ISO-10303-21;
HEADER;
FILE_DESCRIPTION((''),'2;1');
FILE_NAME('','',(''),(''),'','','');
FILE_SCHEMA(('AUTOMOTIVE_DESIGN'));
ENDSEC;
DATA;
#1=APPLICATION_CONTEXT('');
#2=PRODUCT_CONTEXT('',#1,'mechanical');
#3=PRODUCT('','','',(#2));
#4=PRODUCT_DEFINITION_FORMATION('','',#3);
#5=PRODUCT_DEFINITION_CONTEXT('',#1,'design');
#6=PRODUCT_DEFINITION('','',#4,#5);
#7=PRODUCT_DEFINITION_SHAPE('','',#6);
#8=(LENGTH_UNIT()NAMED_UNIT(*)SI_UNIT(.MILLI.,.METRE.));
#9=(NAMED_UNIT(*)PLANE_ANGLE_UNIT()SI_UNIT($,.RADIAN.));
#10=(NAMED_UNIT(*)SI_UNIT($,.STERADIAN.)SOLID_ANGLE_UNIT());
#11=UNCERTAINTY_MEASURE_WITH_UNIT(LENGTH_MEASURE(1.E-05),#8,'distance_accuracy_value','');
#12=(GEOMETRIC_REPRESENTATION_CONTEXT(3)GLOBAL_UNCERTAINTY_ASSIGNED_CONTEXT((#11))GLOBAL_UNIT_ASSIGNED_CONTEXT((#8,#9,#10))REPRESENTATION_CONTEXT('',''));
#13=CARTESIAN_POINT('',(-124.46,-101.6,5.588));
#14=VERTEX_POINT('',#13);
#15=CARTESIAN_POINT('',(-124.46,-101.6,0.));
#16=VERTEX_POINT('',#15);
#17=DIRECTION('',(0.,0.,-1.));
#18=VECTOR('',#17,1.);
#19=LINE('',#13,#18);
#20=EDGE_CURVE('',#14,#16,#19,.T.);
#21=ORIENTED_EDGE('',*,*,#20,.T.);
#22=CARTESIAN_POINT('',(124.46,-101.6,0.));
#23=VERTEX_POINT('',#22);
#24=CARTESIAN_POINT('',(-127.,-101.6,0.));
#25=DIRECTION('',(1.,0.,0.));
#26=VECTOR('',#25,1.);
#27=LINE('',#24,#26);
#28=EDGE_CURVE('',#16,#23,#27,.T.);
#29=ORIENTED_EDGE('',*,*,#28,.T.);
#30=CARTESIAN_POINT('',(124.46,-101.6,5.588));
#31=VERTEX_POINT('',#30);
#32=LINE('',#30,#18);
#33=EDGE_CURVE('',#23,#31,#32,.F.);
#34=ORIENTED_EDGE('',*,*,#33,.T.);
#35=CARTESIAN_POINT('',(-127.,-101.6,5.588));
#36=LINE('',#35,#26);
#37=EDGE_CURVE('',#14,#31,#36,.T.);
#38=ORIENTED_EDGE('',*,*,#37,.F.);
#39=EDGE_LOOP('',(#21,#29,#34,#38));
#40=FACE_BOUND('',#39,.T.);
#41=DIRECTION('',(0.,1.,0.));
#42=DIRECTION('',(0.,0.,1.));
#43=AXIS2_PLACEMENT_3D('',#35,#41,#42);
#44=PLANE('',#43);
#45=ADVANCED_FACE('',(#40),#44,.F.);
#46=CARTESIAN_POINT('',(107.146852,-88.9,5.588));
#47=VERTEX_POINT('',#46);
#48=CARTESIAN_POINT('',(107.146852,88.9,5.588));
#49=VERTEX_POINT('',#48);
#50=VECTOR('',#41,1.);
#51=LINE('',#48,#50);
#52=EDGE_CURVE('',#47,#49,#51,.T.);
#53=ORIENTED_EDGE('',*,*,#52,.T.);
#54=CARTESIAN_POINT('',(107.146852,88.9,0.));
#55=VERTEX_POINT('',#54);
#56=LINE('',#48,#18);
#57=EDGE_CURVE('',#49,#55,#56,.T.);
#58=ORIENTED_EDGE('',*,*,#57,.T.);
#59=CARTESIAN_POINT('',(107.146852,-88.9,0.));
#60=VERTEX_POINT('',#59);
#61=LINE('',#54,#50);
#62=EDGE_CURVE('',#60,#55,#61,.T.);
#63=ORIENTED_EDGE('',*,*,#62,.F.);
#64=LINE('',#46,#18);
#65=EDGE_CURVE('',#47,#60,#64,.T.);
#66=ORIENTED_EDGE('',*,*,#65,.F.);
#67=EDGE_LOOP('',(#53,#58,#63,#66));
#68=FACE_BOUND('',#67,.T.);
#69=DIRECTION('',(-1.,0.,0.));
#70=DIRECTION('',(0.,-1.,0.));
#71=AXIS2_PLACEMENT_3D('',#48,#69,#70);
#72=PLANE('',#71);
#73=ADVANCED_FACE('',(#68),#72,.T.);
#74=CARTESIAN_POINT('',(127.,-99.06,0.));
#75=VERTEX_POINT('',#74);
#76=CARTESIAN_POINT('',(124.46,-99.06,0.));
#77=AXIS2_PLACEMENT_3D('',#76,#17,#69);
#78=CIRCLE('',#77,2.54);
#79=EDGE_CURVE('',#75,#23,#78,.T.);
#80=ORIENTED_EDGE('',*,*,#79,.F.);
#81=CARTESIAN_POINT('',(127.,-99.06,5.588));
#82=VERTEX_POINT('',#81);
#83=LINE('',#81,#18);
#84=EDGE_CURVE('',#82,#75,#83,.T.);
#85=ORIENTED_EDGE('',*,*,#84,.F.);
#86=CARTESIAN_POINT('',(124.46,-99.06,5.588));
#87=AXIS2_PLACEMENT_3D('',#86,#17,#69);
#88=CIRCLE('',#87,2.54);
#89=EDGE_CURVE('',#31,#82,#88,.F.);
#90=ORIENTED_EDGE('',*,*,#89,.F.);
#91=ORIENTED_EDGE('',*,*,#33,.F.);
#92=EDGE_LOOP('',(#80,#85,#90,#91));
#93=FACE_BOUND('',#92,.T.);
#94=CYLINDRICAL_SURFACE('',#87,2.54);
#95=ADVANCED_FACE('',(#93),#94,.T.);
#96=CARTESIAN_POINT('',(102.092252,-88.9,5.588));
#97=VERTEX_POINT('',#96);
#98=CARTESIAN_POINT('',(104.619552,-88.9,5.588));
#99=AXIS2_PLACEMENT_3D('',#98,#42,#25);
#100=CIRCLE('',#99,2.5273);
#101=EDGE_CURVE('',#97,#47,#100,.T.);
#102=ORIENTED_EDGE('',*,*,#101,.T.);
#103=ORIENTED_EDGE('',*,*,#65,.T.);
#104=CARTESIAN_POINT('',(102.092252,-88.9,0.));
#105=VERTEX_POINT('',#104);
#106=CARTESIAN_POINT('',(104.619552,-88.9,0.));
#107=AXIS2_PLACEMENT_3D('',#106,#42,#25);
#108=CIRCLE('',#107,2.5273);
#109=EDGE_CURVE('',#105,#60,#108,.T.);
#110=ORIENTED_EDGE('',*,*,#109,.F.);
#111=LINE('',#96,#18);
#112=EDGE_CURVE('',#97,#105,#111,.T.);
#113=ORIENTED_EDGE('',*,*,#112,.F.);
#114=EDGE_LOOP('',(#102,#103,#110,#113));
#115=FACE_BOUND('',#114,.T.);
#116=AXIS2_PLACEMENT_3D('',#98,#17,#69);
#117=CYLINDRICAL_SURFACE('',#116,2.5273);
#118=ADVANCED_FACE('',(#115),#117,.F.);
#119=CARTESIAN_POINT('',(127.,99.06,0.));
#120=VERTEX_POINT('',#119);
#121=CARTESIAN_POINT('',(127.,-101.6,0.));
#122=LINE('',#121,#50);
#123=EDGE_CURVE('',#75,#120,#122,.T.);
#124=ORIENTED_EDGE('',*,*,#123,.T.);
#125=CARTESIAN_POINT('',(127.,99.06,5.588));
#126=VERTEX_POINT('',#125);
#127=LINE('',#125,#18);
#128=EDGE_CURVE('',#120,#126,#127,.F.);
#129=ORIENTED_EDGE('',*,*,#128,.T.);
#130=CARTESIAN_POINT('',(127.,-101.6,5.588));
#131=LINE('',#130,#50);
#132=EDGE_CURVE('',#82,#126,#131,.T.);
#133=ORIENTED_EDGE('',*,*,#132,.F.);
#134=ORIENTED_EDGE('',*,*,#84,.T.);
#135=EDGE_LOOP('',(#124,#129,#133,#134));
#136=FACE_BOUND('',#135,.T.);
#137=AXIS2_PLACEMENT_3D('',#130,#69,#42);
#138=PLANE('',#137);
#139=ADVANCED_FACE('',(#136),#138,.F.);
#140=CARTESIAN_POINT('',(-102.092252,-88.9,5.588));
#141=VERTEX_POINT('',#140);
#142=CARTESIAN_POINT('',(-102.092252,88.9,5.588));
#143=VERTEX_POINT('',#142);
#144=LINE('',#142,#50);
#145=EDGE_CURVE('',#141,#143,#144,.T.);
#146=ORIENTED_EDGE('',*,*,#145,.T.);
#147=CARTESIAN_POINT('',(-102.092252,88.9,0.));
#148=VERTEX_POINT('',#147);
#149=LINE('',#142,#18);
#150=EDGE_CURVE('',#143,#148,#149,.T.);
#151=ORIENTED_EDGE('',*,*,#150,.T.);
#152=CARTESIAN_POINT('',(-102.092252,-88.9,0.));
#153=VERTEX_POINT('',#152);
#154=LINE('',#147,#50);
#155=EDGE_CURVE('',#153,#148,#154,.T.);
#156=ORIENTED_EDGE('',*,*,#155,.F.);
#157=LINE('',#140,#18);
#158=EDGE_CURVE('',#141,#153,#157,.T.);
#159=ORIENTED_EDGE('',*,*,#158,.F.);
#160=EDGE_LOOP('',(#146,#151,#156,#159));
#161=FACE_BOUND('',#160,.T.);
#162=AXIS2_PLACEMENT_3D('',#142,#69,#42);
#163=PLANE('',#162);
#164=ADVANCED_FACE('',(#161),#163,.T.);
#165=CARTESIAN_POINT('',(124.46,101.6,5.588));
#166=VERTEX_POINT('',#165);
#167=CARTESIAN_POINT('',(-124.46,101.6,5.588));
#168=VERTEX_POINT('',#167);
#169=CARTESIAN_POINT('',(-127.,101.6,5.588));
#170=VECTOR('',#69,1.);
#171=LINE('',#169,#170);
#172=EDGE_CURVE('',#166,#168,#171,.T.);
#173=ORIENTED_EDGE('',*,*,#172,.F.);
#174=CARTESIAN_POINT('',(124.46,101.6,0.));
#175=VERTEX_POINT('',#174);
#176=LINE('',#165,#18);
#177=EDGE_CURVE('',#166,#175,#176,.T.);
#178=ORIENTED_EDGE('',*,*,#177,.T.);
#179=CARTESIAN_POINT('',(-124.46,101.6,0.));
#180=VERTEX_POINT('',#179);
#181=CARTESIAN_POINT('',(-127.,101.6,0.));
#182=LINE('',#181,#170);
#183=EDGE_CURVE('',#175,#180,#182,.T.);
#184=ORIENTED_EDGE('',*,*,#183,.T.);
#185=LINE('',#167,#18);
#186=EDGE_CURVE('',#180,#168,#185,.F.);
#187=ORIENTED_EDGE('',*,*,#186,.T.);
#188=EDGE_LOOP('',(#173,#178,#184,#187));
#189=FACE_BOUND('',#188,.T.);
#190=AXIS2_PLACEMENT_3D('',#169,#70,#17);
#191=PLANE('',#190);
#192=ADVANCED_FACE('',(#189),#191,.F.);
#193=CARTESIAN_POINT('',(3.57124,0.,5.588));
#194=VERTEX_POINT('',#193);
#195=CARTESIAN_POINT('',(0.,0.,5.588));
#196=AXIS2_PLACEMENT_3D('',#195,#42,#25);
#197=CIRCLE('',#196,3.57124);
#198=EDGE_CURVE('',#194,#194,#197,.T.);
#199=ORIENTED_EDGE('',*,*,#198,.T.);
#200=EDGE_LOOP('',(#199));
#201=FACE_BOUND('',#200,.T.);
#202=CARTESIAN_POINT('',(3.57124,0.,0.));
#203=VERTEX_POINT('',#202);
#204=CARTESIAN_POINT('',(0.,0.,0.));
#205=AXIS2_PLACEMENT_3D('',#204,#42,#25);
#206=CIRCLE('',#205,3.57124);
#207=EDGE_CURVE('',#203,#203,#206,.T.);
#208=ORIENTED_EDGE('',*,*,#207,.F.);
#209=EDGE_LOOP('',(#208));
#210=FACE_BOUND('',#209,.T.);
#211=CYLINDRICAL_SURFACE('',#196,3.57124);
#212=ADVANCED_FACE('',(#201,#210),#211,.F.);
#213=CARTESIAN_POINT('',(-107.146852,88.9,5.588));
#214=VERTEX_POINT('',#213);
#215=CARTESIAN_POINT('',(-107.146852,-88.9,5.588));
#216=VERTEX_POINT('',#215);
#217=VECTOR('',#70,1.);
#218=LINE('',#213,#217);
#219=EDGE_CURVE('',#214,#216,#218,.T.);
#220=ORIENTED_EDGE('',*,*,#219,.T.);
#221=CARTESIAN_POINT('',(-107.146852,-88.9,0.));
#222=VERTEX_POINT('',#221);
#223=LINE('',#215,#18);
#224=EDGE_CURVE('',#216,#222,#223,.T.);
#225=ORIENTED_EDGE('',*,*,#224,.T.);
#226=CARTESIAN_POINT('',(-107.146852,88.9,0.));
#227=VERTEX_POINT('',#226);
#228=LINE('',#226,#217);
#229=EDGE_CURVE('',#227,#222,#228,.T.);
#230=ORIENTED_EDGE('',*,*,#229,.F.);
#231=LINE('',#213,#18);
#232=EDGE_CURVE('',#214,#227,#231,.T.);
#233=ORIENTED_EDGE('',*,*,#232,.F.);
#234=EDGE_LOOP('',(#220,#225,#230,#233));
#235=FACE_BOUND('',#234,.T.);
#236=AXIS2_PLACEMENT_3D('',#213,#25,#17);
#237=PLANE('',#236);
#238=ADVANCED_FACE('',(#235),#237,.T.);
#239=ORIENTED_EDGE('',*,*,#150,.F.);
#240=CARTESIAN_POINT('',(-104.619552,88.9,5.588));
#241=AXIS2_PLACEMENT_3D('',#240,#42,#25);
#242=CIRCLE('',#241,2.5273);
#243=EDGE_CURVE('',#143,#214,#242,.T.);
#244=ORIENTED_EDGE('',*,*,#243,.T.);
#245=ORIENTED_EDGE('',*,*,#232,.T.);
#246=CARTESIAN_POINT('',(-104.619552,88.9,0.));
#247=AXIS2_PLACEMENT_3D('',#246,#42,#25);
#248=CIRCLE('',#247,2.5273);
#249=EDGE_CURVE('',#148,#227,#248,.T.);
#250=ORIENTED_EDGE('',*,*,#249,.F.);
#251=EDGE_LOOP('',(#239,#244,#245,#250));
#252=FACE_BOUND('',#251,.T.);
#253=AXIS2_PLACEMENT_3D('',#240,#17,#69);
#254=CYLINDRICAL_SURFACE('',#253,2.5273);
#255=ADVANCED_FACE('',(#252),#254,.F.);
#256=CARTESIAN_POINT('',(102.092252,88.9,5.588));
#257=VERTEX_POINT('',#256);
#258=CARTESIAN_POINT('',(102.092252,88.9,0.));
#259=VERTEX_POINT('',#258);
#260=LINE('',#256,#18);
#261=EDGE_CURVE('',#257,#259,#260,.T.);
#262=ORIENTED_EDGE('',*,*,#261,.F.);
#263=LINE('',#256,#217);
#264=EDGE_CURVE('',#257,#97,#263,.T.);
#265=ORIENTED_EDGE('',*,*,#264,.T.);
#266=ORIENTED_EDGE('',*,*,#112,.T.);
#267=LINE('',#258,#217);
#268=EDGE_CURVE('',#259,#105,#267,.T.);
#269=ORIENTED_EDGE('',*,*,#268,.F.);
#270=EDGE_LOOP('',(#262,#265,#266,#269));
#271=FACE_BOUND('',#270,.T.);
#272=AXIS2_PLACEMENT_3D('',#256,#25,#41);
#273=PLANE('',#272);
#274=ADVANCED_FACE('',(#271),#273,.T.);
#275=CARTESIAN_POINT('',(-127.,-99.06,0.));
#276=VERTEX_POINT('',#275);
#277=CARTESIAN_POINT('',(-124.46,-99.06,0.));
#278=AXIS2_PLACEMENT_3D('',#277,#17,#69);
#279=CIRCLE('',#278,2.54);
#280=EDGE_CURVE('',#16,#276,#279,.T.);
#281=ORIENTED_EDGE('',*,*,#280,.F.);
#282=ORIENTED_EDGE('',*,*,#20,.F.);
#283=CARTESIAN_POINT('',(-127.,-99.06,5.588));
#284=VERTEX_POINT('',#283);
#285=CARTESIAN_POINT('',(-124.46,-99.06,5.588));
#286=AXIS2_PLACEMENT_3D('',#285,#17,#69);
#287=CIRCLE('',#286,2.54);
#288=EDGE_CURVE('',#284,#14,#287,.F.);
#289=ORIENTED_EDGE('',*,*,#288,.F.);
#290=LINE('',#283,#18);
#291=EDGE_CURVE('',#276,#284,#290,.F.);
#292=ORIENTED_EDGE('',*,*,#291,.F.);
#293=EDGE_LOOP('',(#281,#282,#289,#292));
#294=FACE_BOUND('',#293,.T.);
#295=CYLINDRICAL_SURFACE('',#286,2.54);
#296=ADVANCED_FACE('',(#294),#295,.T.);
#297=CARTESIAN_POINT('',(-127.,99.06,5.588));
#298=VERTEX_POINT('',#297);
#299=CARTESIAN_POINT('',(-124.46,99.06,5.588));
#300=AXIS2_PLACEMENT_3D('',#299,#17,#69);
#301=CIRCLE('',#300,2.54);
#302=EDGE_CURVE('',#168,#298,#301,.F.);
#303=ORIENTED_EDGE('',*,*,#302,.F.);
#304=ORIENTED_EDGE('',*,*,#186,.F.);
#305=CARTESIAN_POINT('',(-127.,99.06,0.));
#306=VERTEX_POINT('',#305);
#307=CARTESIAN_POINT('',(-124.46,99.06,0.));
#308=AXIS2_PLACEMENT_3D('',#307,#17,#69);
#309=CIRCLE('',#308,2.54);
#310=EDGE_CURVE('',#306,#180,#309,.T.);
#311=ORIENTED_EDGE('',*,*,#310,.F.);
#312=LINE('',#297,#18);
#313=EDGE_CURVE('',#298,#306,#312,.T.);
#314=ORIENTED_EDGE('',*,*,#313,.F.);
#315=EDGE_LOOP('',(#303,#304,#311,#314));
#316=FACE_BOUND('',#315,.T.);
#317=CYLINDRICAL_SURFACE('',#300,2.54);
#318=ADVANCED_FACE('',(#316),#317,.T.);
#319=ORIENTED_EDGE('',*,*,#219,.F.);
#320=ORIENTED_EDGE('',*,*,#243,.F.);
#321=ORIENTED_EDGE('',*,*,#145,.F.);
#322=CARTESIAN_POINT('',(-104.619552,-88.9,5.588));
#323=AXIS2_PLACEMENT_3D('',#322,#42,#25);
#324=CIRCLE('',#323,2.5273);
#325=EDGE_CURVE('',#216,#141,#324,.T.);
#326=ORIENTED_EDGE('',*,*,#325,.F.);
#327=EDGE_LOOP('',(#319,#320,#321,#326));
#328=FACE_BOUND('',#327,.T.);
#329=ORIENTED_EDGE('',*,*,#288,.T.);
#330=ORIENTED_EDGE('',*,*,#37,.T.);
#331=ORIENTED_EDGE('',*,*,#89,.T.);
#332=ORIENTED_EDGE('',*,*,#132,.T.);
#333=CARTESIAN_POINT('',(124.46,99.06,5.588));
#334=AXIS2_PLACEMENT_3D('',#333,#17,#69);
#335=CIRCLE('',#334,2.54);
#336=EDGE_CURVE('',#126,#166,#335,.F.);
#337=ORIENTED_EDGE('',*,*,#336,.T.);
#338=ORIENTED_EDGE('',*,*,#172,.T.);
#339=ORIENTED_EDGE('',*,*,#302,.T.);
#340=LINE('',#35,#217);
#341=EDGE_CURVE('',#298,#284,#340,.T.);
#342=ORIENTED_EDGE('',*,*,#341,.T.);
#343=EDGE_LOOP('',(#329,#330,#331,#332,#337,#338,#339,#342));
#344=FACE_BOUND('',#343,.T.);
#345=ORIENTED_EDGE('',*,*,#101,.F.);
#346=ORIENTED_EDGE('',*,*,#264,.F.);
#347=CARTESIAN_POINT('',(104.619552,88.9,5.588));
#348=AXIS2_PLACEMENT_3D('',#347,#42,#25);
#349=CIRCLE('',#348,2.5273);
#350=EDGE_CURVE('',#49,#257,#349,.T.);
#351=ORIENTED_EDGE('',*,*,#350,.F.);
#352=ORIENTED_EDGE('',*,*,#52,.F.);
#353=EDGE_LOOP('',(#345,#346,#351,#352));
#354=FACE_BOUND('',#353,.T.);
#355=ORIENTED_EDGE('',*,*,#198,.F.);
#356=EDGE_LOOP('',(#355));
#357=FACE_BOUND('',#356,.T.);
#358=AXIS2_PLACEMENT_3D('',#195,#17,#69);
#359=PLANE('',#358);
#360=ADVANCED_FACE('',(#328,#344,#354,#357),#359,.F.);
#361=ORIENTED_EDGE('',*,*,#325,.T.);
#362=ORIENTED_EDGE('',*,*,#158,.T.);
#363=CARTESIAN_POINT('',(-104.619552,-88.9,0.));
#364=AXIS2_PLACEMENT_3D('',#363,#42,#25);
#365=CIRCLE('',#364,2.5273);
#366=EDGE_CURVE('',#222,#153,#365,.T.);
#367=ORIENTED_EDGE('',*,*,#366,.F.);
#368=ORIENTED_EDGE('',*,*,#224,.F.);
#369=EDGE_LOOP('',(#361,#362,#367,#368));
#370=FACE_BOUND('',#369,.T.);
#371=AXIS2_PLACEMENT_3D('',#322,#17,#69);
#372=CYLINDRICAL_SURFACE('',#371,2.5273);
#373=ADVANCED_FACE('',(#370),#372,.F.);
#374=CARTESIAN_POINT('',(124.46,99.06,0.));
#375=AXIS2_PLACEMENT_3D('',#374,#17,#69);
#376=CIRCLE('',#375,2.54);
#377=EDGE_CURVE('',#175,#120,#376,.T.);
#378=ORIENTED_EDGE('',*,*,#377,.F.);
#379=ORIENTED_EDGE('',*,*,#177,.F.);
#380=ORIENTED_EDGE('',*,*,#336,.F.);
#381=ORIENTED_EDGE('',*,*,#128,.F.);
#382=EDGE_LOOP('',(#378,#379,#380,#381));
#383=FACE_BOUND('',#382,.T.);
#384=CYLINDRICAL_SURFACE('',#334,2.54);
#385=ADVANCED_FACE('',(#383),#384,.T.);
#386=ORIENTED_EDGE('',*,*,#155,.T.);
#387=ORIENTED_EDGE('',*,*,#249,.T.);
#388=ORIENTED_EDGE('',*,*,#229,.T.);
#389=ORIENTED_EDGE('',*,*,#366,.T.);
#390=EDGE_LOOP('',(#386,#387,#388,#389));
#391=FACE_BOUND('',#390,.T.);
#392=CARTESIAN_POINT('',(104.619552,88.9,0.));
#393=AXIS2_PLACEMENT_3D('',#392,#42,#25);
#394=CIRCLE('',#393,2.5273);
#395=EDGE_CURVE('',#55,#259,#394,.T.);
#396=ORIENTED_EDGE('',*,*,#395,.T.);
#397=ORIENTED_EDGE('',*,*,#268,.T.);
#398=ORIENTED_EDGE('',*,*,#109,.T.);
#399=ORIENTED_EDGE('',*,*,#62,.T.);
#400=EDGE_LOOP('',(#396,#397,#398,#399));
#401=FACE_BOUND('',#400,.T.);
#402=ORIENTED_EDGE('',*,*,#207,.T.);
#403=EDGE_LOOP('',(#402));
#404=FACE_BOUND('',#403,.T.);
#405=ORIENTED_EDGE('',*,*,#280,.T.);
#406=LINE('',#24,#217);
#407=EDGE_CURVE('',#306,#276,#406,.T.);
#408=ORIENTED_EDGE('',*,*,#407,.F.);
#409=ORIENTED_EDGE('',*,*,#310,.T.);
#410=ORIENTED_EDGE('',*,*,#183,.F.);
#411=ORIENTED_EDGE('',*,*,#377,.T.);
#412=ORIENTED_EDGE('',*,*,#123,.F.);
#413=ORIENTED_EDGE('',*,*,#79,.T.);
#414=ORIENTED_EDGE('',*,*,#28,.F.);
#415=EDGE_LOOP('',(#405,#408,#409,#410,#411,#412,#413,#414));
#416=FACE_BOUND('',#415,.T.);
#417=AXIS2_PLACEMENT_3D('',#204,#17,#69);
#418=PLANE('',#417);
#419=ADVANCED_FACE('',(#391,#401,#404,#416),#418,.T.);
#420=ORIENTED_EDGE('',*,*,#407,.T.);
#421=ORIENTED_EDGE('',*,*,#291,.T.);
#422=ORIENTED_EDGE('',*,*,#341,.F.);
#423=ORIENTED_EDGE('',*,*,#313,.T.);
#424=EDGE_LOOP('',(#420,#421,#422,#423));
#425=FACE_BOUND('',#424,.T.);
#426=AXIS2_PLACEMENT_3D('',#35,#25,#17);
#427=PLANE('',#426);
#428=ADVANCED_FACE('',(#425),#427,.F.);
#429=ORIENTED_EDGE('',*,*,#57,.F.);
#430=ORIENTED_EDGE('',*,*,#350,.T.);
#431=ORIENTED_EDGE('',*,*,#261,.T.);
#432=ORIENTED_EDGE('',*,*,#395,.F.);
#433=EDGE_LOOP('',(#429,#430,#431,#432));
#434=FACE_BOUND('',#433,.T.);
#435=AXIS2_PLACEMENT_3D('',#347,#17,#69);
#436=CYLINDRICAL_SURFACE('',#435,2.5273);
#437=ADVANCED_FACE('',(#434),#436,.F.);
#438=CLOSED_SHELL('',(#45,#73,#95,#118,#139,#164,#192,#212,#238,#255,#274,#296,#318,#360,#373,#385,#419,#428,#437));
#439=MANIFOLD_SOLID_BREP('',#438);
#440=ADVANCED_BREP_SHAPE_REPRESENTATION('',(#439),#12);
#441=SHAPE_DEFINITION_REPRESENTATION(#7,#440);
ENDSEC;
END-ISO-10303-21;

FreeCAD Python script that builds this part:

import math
import FreeCAD as App
import Part
import Sketcher
from FreeCAD import Vector
Q = App.Units.Quantity


def edges_at(feature, points):
    """Names of the edges that pass closest to the given points."""
    edges = feature.Shape.Edges
    near = lambda p: min(range(len(edges)), key=lambda i: edges[i].distToShape(Part.Vertex(*p))[0])
    return sorted({f"Edge{near(p) + 1}" for p in points})


def add_polygon(sketch, points):
    """Adds a closed chain of lines whose ends are joined by coincident constraints."""
    first, n = sketch.GeometryCount, len(points)
    for a, b in zip(points, points[1:] + points[:1]):
        sketch.addGeometry(Part.LineSegment(App.Vector(*a, 0), App.Vector(*b, 0)), False)
    for i in range(n):
        sketch.addConstraint(Sketcher.Constraint("Coincident", first + i, 2, first + (i + 1) % n, 1))

doc = App.newDocument("Part")
body = doc.addObject("PartDesign::Body", "Body")

sketch1 = body.newObject("Sketcher::SketchObject", "Sketch")
sketch1.AttachmentSupport = (doc.getObject("XY_Plane"), [""])
sketch1.MapMode = "FlatFace"
add_polygon(sketch1, [(-127, 101.6), (-127, -101.6), (127, -101.6), (127, 101.6)])
sketch1.addGeometry(Part.ArcOfCircle(Part.Circle(Vector(-104.6, 88.9, 0), Vector(0, 0, 1), 2.5), math.radians(0), math.radians(180)), False)
sketch1.addGeometry(Part.LineSegment(Vector(-102.1, 88.9, 0), Vector(-102.1, -88.9, 0)), False)
sketch1.addGeometry(Part.ArcOfCircle(Part.Circle(Vector(-104.6, -88.9, 0), Vector(0, 0, 1), 2.5), math.radians(180), math.radians(360)), False)
sketch1.addGeometry(Part.LineSegment(Vector(-107.1, -88.9, 0), Vector(-107.1, 88.9, 0)), False)
sketch1.addGeometry(Part.ArcOfCircle(Part.Circle(Vector(104.6, 88.9, 0), Vector(0, 0, 1), 2.5), math.radians(0), math.radians(180)), False)
sketch1.addGeometry(Part.LineSegment(Vector(107.1, 88.9, 0), Vector(107.1, -88.9, 0)), False)
sketch1.addGeometry(Part.ArcOfCircle(Part.Circle(Vector(104.6, -88.9, 0), Vector(0, 0, 1), 2.5), math.radians(180), math.radians(360)), False)
sketch1.addGeometry(Part.LineSegment(Vector(102.1, -88.9, 0), Vector(102.1, 88.9, 0)), False)
sketch1.addConstraint(Sketcher.Constraint("Tangent", 4, 1, 5, 1))
sketch1.addConstraint(Sketcher.Constraint("Tangent", 5, 2, 6, 2))
sketch1.addConstraint(Sketcher.Constraint("Tangent", 6, 1, 7, 1))
sketch1.addConstraint(Sketcher.Constraint("Tangent", 7, 2, 4, 2))
sketch1.addConstraint(Sketcher.Constraint("Tangent", 8, 1, 9, 1))
sketch1.addConstraint(Sketcher.Constraint("Tangent", 9, 2, 10, 2))
sketch1.addConstraint(Sketcher.Constraint("Tangent", 10, 1, 11, 1))
sketch1.addConstraint(Sketcher.Constraint("Tangent", 11, 2, 8, 2))
sketch1.addConstraint(Sketcher.Constraint("Vertical", 0))
sketch1.addConstraint(Sketcher.Constraint("Horizontal", 1))
sketch1.addConstraint(Sketcher.Constraint("Vertical", 2))
sketch1.addConstraint(Sketcher.Constraint("Horizontal", 3))
sketch1.addConstraint(Sketcher.Constraint("Vertical", 5))
sketch1.addConstraint(Sketcher.Constraint("Vertical", 7))
sketch1.addConstraint(Sketcher.Constraint("Vertical", 9))
sketch1.addConstraint(Sketcher.Constraint("Vertical", 11))
sketch1.addConstraint(Sketcher.Constraint("Equal", 6, 8))
sketch1.addConstraint(Sketcher.Constraint("Symmetric", 6, 3, 8, 3, -1, 1))
sketch1.addConstraint(Sketcher.Constraint("Symmetric", 0, 2, 2, 2, -1, 1))
sketch1.addConstraint(Sketcher.Constraint("Horizontal", 4, 3, 8, 3))
sketch1.addConstraint(Sketcher.Constraint("Horizontal", 6, 3, 10, 3))
sketch1.addConstraint(Sketcher.Constraint("DistanceX", 1, 1, 1, 2, Q("10 in")))
sketch1.addConstraint(Sketcher.Constraint("DistanceY", 0, 2, 0, 1, Q("8 in")))
sketch1.addConstraint(Sketcher.Constraint("DistanceY", 5, 2, 5, 1, Q("7 in")))
sketch1.addConstraint(Sketcher.Constraint("Radius", 4, Q("0.0995 in")))
sketch1.addConstraint(Sketcher.Constraint("DistanceX", 4, 3, -1, 1, Q("104.619552 mm")))
pad1 = body.newObject("PartDesign::Pad", "Pad")
pad1.Profile = sketch1
pad1.Length = Q("0.22 in")

sketch2 = body.newObject("Sketcher::SketchObject", "Sketch001")
sketch2.AttachmentSupport = (doc.getObject("XY_Plane"), [""])
sketch2.MapMode = "FlatFace"
sketch2.AttachmentOffset = App.Placement(Vector(0, 0, 0.22 * 25.4), App.Rotation())
sketch2.addGeometry(Part.Circle(Vector(0, 0, 0), Vector(0, 0, 1), 3.6), False)
sketch2.addConstraint(Sketcher.Constraint("Coincident", 0, 3, -1, 1))
sketch2.addConstraint(Sketcher.Constraint("Diameter", 0, Q("0.2812 in")))
doc.recompute()
hole = body.newObject("PartDesign::Hole", "Hole")
hole.Profile = sketch2
hole.ThreadType = "None"
hole.Diameter = Q("0.2812 in")
hole.DepthType = "ThroughAll"
doc.recompute()

fillet = body.newObject("PartDesign::Fillet", "Fillet")
fillet.Base = (hole, edges_at(hole, [
    (127, -101.6, 2.794),
    (-127, -101.6, 2.794),
    (-127, 101.6, 2.794),
    (127, 101.6, 2.794),
]))
fillet.Radius = Q("0.1 in")

doc.recompute()
